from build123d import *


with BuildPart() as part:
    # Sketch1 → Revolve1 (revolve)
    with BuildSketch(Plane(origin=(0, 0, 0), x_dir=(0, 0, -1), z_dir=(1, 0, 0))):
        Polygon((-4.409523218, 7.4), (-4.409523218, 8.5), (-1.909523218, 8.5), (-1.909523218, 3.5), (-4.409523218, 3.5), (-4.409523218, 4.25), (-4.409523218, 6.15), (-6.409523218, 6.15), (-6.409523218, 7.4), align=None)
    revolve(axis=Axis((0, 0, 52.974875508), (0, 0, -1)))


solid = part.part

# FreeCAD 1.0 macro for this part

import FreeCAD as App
import Part
import Sketcher


def add_polygon(sketch, points):
    """Adds a closed chain of lines whose ends are joined by coincident constraints."""
    first, n = sketch.GeometryCount, len(points)
    for a, b in zip(points, points[1:] + points[:1]):
        sketch.addGeometry(Part.LineSegment(App.Vector(*a, 0), App.Vector(*b, 0)), False)
    for i in range(n):
        sketch.addConstraint(Sketcher.Constraint("Coincident", first + i, 2, first + (i + 1) % n, 1))

doc = App.newDocument("Part")
body = doc.addObject("PartDesign::Body", "Body")

sketch1 = doc.addObject("Sketcher::SketchObject", "Sketch")
body.addObject(sketch1)
sketch1.AttachmentSupport = (doc.YZ_Plane, [""])
sketch1.MapMode = "FlatFace"
add_polygon(sketch1, [(8.5, 4.4), (7.4, 4.4), (7.4, 6.4), (6.2, 6.4), (6.2, 4.4), (3.5, 4.4), (3.5, 1.9), (8.5, 1.9)])
sketch1.addConstraint([
    Sketcher.Constraint("Horizontal", 0),
    Sketcher.Constraint("Vertical", 1),
    Sketcher.Constraint("Horizontal", 2),
    Sketcher.Constraint("Vertical", 3),
    Sketcher.Constraint("Horizontal", 4),
    Sketcher.Constraint("Vertical", 5),
    Sketcher.Constraint("Horizontal", 6),
    Sketcher.Constraint("Vertical", 7),
    Sketcher.Constraint("Horizontal", 0, 2, 3, 2),
    Sketcher.Constraint("DistanceX", 6, 1, 6, 2, 5.0),
    Sketcher.Constraint("DistanceY", 1, 1, 1, 2, 2.0),
    Sketcher.Constraint("DistanceX", 0, 2, 0, 1, 1.1),
    Sketcher.Constraint("DistanceY", 5, 2, 5, 1, 2.5),
    Sketcher.Constraint("DistanceX", 2, 2, 2, 1, 1.25),
    Sketcher.Constraint("DistanceX", -1, 1, 0, 2, 7.4),
    Sketcher.Constraint("DistanceY", -1, 1, 0, 2, 4.409523),
])
revolution = doc.addObject("PartDesign::Revolution", "Revolution")
body.addObject(revolution)
revolution.Profile = sketch1
revolution.ReferenceAxis = (sketch1, ["V_Axis"])
revolution.Angle = 360

doc.recompute()
